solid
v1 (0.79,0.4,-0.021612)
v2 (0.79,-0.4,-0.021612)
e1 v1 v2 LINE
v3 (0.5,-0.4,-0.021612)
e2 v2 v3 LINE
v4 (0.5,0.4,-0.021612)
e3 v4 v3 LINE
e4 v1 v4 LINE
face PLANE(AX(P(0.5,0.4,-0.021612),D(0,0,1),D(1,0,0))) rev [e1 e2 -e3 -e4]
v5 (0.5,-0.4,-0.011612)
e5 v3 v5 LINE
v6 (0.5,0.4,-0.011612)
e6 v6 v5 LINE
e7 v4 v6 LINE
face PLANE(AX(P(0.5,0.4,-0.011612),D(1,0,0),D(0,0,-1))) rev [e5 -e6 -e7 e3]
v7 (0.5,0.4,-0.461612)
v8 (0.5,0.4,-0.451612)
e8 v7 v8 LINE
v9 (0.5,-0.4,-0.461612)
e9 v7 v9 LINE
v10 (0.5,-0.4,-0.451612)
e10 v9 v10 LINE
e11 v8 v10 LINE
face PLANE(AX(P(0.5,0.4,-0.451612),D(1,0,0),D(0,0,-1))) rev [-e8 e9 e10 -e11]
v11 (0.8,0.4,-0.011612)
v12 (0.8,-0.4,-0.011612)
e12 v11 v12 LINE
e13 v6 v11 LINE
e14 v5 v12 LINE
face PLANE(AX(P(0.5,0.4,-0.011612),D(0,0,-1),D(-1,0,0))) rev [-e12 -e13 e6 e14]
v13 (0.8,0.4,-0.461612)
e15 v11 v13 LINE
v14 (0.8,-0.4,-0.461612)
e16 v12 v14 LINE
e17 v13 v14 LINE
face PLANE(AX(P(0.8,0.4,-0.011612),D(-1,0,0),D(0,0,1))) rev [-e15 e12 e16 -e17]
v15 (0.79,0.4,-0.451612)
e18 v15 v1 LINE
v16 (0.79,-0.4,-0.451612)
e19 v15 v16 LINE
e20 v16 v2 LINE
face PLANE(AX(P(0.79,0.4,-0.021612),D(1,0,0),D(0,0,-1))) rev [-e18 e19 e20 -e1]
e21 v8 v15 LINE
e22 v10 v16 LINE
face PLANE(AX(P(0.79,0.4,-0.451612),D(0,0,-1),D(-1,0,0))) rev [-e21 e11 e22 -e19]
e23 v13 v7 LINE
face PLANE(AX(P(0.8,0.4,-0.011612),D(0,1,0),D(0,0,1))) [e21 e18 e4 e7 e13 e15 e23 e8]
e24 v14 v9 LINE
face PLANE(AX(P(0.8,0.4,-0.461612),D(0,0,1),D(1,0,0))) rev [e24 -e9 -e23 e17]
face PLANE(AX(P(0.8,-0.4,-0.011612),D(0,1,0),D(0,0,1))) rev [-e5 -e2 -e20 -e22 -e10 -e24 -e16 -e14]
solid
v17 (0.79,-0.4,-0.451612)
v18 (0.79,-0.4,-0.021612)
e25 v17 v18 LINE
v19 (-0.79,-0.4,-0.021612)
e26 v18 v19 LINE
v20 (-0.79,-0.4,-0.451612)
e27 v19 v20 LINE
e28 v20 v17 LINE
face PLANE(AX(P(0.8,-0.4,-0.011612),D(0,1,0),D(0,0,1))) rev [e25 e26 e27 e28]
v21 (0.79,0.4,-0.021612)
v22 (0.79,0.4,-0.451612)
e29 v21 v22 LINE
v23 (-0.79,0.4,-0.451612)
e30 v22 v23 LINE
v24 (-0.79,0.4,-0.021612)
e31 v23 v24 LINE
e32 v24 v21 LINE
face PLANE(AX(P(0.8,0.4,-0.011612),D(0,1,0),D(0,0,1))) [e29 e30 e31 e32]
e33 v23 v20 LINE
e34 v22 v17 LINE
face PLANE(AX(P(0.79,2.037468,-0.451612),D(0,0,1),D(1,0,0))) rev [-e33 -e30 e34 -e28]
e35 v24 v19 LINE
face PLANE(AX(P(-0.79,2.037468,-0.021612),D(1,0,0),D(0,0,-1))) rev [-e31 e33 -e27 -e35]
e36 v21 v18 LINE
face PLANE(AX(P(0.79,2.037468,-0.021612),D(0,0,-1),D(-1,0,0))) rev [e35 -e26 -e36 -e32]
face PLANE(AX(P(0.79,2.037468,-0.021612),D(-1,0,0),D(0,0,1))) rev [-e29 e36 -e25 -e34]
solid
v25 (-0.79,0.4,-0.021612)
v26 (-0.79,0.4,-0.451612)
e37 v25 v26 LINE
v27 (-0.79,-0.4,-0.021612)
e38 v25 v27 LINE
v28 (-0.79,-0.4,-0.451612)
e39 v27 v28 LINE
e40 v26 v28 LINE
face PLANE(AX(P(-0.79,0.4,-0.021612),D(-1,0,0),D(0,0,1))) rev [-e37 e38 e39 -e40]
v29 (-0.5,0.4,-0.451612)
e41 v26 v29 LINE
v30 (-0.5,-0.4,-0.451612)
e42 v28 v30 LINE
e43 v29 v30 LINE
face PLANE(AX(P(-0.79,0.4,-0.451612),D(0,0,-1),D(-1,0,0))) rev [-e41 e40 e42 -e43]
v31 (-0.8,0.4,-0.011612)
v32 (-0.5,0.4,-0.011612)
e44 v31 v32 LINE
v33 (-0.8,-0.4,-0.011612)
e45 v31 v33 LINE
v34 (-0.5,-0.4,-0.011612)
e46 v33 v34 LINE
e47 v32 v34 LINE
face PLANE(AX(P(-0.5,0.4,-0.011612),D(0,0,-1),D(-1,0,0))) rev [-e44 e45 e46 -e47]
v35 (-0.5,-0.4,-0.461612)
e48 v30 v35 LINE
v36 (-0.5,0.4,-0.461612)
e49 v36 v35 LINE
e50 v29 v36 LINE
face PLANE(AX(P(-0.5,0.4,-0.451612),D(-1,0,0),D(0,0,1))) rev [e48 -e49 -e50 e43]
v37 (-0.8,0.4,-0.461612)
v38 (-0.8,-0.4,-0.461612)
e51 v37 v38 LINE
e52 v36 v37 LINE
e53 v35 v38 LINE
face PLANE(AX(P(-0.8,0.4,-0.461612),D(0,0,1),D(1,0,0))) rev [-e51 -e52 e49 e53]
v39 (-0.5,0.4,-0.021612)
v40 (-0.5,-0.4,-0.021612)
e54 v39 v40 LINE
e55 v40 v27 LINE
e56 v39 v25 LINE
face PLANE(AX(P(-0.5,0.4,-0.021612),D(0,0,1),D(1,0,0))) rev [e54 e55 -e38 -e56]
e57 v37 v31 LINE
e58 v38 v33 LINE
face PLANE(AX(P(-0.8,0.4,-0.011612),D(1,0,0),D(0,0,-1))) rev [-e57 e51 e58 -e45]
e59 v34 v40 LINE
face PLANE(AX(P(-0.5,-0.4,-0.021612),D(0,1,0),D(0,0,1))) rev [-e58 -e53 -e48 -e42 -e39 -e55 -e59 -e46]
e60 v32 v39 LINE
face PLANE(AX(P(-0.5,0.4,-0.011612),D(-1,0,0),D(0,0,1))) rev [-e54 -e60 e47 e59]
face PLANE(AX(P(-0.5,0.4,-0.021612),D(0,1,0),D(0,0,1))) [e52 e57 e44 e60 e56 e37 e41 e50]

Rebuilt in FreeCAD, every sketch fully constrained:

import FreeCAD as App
import Part
import Sketcher
Q = App.Units.Quantity


def add_polygon(sketch, points):
    """Adds a closed chain of lines whose ends are joined by coincident constraints."""
    first, n = sketch.GeometryCount, len(points)
    for a, b in zip(points, points[1:] + points[:1]):
        sketch.addGeometry(Part.LineSegment(App.Vector(*a, 0), App.Vector(*b, 0)), False)
    for i in range(n):
        sketch.addConstraint(Sketcher.Constraint("Coincident", first + i, 2, first + (i + 1) % n, 1))

doc = App.newDocument("Part")
body = doc.addObject("PartDesign::Body", "Body")

sketch1 = body.newObject("Sketcher::SketchObject", "Sketch")
sketch1.AttachmentSupport = (doc.getObject("XZ_Plane"), [""])
sketch1.MapMode = "FlatFace"
add_polygon(sketch1, [(0.8, -0.012), (0.8, -0.462), (0.5, -0.462), (0.5, -0.452), (0.79, -0.452), (0.79, -0.022), (0.5, -0.022), (0.5, -0.012)])
sketch1.addConstraint(Sketcher.Constraint("Vertical", 0))
sketch1.addConstraint(Sketcher.Constraint("Horizontal", 1))
sketch1.addConstraint(Sketcher.Constraint("Vertical", 2))
sketch1.addConstraint(Sketcher.Constraint("Horizontal", 3))
sketch1.addConstraint(Sketcher.Constraint("Vertical", 4))
sketch1.addConstraint(Sketcher.Constraint("Horizontal", 5))
sketch1.addConstraint(Sketcher.Constraint("Vertical", 6))
sketch1.addConstraint(Sketcher.Constraint("Horizontal", 7))
sketch1.addConstraint(Sketcher.Constraint("Vertical", 2, 2, 5, 2))
sketch1.addConstraint(Sketcher.Constraint("Equal", 2, 6))
sketch1.addConstraint(Sketcher.Constraint("DistanceX", 1, 2, 1, 1, Q("0.3 mm")))
sketch1.addConstraint(Sketcher.Constraint("DistanceX", 3, 1, 3, 2, Q("0.29 mm")))
sketch1.addConstraint(Sketcher.Constraint("DistanceY", 0, 2, 0, 1, Q("0.45 mm")))
sketch1.addConstraint(Sketcher.Constraint("DistanceY", 2, 1, 2, 2, Q("0.01 mm")))
sketch1.addConstraint(Sketcher.Constraint("DistanceX", -1, 1, 0, 2, Q("0.8 mm")))
sketch1.addConstraint(Sketcher.Constraint("DistanceY", 0, 2, -1, 1, Q("0.461612 mm")))
pad1 = body.newObject("PartDesign::Pad", "Pad")
pad1.Profile = sketch1
pad1.Length = 0.8
pad1.Midplane = True
body2 = doc.addObject("PartDesign::Body", "Body001")

sketch2 = body2.newObject("Sketcher::SketchObject", "Sketch001")
sketch2.AttachmentSupport = (doc.getObject("XZ_Plane001"), [""])
sketch2.MapMode = "FlatFace"
add_polygon(sketch2, [(-0.8, -0.012), (-0.5, -0.012), (-0.5, -0.022), (-0.79, -0.022), (-0.79, -0.452), (-0.5, -0.452), (-0.5, -0.462), (-0.8, -0.462)])
sketch2.addConstraint(Sketcher.Constraint("Horizontal", 0))
sketch2.addConstraint(Sketcher.Constraint("Vertical", 1))
sketch2.addConstraint(Sketcher.Constraint("Horizontal", 2))
sketch2.addConstraint(Sketcher.Constraint("Vertical", 3))
sketch2.addConstraint(Sketcher.Constraint("Horizontal", 4))
sketch2.addConstraint(Sketcher.Constraint("Vertical", 5))
sketch2.addConstraint(Sketcher.Constraint("Horizontal", 6))
sketch2.addConstraint(Sketcher.Constraint("Vertical", 7))
sketch2.addConstraint(Sketcher.Constraint("Vertical", 1, 2, 4, 2))
sketch2.addConstraint(Sketcher.Constraint("Equal", 1, 5))
sketch2.addConstraint(Sketcher.Constraint("DistanceX", 0, 1, 0, 2, Q("0.3 mm")))
sketch2.addConstraint(Sketcher.Constraint("DistanceX", 2, 2, 2, 1, Q("0.29 mm")))
sketch2.addConstraint(Sketcher.Constraint("DistanceY", 1, 2, 1, 1, Q("0.01 mm")))
sketch2.addConstraint(Sketcher.Constraint("DistanceY", 3, 2, 3, 1, Q("0.43 mm")))
sketch2.addConstraint(Sketcher.Constraint("DistanceX", 0, 2, -1, 1, Q("0.5 mm")))
sketch2.addConstraint(Sketcher.Constraint("DistanceY", 0, 2, -1, 1, Q("0.011612 mm")))
pad2 = body2.newObject("PartDesign::Pad", "Pad001")
pad2.Profile = sketch2
pad2.Length = 0.8
pad2.Midplane = True
body3 = doc.addObject("PartDesign::Body", "Body002")

sketch3 = body3.newObject("Sketcher::SketchObject", "Sketch002")
sketch3.AttachmentSupport = (doc.getObject("XZ_Plane002"), [""])
sketch3.MapMode = "FlatFace"
sketch3.AttachmentOffset = App.Placement(App.Vector(0, 0, 0.4), App.Rotation())
add_polygon(sketch3, [(-0.79, -0.02), (0.79, -0.02), (0.79, -0.45), (-0.79, -0.45)])
sketch3.addConstraint(Sketcher.Constraint("Horizontal", 0))
sketch3.addConstraint(Sketcher.Constraint("Vertical", 1))
sketch3.addConstraint(Sketcher.Constraint("Horizontal", 2))
sketch3.addConstraint(Sketcher.Constraint("Vertical", 3))
sketch3.addConstraint(Sketcher.Constraint("DistanceX", 0, 1, 0, 2, Q("1.58 mm")))
sketch3.addConstraint(Sketcher.Constraint("DistanceY", 1, 2, 1, 1, Q("0.43 mm")))
sketch3.addConstraint(Sketcher.Constraint("DistanceX", -1, 1, 0, 2, Q("0.79 mm")))
sketch3.addConstraint(Sketcher.Constraint("DistanceY", 0, 2, -1, 1, Q("0.021612 mm")))
pad3 = body3.newObject("PartDesign::Pad", "Pad002")
pad3.Profile = sketch3
pad3.Length = 0.8
pad3.Reversed = True

doc.recompute()
